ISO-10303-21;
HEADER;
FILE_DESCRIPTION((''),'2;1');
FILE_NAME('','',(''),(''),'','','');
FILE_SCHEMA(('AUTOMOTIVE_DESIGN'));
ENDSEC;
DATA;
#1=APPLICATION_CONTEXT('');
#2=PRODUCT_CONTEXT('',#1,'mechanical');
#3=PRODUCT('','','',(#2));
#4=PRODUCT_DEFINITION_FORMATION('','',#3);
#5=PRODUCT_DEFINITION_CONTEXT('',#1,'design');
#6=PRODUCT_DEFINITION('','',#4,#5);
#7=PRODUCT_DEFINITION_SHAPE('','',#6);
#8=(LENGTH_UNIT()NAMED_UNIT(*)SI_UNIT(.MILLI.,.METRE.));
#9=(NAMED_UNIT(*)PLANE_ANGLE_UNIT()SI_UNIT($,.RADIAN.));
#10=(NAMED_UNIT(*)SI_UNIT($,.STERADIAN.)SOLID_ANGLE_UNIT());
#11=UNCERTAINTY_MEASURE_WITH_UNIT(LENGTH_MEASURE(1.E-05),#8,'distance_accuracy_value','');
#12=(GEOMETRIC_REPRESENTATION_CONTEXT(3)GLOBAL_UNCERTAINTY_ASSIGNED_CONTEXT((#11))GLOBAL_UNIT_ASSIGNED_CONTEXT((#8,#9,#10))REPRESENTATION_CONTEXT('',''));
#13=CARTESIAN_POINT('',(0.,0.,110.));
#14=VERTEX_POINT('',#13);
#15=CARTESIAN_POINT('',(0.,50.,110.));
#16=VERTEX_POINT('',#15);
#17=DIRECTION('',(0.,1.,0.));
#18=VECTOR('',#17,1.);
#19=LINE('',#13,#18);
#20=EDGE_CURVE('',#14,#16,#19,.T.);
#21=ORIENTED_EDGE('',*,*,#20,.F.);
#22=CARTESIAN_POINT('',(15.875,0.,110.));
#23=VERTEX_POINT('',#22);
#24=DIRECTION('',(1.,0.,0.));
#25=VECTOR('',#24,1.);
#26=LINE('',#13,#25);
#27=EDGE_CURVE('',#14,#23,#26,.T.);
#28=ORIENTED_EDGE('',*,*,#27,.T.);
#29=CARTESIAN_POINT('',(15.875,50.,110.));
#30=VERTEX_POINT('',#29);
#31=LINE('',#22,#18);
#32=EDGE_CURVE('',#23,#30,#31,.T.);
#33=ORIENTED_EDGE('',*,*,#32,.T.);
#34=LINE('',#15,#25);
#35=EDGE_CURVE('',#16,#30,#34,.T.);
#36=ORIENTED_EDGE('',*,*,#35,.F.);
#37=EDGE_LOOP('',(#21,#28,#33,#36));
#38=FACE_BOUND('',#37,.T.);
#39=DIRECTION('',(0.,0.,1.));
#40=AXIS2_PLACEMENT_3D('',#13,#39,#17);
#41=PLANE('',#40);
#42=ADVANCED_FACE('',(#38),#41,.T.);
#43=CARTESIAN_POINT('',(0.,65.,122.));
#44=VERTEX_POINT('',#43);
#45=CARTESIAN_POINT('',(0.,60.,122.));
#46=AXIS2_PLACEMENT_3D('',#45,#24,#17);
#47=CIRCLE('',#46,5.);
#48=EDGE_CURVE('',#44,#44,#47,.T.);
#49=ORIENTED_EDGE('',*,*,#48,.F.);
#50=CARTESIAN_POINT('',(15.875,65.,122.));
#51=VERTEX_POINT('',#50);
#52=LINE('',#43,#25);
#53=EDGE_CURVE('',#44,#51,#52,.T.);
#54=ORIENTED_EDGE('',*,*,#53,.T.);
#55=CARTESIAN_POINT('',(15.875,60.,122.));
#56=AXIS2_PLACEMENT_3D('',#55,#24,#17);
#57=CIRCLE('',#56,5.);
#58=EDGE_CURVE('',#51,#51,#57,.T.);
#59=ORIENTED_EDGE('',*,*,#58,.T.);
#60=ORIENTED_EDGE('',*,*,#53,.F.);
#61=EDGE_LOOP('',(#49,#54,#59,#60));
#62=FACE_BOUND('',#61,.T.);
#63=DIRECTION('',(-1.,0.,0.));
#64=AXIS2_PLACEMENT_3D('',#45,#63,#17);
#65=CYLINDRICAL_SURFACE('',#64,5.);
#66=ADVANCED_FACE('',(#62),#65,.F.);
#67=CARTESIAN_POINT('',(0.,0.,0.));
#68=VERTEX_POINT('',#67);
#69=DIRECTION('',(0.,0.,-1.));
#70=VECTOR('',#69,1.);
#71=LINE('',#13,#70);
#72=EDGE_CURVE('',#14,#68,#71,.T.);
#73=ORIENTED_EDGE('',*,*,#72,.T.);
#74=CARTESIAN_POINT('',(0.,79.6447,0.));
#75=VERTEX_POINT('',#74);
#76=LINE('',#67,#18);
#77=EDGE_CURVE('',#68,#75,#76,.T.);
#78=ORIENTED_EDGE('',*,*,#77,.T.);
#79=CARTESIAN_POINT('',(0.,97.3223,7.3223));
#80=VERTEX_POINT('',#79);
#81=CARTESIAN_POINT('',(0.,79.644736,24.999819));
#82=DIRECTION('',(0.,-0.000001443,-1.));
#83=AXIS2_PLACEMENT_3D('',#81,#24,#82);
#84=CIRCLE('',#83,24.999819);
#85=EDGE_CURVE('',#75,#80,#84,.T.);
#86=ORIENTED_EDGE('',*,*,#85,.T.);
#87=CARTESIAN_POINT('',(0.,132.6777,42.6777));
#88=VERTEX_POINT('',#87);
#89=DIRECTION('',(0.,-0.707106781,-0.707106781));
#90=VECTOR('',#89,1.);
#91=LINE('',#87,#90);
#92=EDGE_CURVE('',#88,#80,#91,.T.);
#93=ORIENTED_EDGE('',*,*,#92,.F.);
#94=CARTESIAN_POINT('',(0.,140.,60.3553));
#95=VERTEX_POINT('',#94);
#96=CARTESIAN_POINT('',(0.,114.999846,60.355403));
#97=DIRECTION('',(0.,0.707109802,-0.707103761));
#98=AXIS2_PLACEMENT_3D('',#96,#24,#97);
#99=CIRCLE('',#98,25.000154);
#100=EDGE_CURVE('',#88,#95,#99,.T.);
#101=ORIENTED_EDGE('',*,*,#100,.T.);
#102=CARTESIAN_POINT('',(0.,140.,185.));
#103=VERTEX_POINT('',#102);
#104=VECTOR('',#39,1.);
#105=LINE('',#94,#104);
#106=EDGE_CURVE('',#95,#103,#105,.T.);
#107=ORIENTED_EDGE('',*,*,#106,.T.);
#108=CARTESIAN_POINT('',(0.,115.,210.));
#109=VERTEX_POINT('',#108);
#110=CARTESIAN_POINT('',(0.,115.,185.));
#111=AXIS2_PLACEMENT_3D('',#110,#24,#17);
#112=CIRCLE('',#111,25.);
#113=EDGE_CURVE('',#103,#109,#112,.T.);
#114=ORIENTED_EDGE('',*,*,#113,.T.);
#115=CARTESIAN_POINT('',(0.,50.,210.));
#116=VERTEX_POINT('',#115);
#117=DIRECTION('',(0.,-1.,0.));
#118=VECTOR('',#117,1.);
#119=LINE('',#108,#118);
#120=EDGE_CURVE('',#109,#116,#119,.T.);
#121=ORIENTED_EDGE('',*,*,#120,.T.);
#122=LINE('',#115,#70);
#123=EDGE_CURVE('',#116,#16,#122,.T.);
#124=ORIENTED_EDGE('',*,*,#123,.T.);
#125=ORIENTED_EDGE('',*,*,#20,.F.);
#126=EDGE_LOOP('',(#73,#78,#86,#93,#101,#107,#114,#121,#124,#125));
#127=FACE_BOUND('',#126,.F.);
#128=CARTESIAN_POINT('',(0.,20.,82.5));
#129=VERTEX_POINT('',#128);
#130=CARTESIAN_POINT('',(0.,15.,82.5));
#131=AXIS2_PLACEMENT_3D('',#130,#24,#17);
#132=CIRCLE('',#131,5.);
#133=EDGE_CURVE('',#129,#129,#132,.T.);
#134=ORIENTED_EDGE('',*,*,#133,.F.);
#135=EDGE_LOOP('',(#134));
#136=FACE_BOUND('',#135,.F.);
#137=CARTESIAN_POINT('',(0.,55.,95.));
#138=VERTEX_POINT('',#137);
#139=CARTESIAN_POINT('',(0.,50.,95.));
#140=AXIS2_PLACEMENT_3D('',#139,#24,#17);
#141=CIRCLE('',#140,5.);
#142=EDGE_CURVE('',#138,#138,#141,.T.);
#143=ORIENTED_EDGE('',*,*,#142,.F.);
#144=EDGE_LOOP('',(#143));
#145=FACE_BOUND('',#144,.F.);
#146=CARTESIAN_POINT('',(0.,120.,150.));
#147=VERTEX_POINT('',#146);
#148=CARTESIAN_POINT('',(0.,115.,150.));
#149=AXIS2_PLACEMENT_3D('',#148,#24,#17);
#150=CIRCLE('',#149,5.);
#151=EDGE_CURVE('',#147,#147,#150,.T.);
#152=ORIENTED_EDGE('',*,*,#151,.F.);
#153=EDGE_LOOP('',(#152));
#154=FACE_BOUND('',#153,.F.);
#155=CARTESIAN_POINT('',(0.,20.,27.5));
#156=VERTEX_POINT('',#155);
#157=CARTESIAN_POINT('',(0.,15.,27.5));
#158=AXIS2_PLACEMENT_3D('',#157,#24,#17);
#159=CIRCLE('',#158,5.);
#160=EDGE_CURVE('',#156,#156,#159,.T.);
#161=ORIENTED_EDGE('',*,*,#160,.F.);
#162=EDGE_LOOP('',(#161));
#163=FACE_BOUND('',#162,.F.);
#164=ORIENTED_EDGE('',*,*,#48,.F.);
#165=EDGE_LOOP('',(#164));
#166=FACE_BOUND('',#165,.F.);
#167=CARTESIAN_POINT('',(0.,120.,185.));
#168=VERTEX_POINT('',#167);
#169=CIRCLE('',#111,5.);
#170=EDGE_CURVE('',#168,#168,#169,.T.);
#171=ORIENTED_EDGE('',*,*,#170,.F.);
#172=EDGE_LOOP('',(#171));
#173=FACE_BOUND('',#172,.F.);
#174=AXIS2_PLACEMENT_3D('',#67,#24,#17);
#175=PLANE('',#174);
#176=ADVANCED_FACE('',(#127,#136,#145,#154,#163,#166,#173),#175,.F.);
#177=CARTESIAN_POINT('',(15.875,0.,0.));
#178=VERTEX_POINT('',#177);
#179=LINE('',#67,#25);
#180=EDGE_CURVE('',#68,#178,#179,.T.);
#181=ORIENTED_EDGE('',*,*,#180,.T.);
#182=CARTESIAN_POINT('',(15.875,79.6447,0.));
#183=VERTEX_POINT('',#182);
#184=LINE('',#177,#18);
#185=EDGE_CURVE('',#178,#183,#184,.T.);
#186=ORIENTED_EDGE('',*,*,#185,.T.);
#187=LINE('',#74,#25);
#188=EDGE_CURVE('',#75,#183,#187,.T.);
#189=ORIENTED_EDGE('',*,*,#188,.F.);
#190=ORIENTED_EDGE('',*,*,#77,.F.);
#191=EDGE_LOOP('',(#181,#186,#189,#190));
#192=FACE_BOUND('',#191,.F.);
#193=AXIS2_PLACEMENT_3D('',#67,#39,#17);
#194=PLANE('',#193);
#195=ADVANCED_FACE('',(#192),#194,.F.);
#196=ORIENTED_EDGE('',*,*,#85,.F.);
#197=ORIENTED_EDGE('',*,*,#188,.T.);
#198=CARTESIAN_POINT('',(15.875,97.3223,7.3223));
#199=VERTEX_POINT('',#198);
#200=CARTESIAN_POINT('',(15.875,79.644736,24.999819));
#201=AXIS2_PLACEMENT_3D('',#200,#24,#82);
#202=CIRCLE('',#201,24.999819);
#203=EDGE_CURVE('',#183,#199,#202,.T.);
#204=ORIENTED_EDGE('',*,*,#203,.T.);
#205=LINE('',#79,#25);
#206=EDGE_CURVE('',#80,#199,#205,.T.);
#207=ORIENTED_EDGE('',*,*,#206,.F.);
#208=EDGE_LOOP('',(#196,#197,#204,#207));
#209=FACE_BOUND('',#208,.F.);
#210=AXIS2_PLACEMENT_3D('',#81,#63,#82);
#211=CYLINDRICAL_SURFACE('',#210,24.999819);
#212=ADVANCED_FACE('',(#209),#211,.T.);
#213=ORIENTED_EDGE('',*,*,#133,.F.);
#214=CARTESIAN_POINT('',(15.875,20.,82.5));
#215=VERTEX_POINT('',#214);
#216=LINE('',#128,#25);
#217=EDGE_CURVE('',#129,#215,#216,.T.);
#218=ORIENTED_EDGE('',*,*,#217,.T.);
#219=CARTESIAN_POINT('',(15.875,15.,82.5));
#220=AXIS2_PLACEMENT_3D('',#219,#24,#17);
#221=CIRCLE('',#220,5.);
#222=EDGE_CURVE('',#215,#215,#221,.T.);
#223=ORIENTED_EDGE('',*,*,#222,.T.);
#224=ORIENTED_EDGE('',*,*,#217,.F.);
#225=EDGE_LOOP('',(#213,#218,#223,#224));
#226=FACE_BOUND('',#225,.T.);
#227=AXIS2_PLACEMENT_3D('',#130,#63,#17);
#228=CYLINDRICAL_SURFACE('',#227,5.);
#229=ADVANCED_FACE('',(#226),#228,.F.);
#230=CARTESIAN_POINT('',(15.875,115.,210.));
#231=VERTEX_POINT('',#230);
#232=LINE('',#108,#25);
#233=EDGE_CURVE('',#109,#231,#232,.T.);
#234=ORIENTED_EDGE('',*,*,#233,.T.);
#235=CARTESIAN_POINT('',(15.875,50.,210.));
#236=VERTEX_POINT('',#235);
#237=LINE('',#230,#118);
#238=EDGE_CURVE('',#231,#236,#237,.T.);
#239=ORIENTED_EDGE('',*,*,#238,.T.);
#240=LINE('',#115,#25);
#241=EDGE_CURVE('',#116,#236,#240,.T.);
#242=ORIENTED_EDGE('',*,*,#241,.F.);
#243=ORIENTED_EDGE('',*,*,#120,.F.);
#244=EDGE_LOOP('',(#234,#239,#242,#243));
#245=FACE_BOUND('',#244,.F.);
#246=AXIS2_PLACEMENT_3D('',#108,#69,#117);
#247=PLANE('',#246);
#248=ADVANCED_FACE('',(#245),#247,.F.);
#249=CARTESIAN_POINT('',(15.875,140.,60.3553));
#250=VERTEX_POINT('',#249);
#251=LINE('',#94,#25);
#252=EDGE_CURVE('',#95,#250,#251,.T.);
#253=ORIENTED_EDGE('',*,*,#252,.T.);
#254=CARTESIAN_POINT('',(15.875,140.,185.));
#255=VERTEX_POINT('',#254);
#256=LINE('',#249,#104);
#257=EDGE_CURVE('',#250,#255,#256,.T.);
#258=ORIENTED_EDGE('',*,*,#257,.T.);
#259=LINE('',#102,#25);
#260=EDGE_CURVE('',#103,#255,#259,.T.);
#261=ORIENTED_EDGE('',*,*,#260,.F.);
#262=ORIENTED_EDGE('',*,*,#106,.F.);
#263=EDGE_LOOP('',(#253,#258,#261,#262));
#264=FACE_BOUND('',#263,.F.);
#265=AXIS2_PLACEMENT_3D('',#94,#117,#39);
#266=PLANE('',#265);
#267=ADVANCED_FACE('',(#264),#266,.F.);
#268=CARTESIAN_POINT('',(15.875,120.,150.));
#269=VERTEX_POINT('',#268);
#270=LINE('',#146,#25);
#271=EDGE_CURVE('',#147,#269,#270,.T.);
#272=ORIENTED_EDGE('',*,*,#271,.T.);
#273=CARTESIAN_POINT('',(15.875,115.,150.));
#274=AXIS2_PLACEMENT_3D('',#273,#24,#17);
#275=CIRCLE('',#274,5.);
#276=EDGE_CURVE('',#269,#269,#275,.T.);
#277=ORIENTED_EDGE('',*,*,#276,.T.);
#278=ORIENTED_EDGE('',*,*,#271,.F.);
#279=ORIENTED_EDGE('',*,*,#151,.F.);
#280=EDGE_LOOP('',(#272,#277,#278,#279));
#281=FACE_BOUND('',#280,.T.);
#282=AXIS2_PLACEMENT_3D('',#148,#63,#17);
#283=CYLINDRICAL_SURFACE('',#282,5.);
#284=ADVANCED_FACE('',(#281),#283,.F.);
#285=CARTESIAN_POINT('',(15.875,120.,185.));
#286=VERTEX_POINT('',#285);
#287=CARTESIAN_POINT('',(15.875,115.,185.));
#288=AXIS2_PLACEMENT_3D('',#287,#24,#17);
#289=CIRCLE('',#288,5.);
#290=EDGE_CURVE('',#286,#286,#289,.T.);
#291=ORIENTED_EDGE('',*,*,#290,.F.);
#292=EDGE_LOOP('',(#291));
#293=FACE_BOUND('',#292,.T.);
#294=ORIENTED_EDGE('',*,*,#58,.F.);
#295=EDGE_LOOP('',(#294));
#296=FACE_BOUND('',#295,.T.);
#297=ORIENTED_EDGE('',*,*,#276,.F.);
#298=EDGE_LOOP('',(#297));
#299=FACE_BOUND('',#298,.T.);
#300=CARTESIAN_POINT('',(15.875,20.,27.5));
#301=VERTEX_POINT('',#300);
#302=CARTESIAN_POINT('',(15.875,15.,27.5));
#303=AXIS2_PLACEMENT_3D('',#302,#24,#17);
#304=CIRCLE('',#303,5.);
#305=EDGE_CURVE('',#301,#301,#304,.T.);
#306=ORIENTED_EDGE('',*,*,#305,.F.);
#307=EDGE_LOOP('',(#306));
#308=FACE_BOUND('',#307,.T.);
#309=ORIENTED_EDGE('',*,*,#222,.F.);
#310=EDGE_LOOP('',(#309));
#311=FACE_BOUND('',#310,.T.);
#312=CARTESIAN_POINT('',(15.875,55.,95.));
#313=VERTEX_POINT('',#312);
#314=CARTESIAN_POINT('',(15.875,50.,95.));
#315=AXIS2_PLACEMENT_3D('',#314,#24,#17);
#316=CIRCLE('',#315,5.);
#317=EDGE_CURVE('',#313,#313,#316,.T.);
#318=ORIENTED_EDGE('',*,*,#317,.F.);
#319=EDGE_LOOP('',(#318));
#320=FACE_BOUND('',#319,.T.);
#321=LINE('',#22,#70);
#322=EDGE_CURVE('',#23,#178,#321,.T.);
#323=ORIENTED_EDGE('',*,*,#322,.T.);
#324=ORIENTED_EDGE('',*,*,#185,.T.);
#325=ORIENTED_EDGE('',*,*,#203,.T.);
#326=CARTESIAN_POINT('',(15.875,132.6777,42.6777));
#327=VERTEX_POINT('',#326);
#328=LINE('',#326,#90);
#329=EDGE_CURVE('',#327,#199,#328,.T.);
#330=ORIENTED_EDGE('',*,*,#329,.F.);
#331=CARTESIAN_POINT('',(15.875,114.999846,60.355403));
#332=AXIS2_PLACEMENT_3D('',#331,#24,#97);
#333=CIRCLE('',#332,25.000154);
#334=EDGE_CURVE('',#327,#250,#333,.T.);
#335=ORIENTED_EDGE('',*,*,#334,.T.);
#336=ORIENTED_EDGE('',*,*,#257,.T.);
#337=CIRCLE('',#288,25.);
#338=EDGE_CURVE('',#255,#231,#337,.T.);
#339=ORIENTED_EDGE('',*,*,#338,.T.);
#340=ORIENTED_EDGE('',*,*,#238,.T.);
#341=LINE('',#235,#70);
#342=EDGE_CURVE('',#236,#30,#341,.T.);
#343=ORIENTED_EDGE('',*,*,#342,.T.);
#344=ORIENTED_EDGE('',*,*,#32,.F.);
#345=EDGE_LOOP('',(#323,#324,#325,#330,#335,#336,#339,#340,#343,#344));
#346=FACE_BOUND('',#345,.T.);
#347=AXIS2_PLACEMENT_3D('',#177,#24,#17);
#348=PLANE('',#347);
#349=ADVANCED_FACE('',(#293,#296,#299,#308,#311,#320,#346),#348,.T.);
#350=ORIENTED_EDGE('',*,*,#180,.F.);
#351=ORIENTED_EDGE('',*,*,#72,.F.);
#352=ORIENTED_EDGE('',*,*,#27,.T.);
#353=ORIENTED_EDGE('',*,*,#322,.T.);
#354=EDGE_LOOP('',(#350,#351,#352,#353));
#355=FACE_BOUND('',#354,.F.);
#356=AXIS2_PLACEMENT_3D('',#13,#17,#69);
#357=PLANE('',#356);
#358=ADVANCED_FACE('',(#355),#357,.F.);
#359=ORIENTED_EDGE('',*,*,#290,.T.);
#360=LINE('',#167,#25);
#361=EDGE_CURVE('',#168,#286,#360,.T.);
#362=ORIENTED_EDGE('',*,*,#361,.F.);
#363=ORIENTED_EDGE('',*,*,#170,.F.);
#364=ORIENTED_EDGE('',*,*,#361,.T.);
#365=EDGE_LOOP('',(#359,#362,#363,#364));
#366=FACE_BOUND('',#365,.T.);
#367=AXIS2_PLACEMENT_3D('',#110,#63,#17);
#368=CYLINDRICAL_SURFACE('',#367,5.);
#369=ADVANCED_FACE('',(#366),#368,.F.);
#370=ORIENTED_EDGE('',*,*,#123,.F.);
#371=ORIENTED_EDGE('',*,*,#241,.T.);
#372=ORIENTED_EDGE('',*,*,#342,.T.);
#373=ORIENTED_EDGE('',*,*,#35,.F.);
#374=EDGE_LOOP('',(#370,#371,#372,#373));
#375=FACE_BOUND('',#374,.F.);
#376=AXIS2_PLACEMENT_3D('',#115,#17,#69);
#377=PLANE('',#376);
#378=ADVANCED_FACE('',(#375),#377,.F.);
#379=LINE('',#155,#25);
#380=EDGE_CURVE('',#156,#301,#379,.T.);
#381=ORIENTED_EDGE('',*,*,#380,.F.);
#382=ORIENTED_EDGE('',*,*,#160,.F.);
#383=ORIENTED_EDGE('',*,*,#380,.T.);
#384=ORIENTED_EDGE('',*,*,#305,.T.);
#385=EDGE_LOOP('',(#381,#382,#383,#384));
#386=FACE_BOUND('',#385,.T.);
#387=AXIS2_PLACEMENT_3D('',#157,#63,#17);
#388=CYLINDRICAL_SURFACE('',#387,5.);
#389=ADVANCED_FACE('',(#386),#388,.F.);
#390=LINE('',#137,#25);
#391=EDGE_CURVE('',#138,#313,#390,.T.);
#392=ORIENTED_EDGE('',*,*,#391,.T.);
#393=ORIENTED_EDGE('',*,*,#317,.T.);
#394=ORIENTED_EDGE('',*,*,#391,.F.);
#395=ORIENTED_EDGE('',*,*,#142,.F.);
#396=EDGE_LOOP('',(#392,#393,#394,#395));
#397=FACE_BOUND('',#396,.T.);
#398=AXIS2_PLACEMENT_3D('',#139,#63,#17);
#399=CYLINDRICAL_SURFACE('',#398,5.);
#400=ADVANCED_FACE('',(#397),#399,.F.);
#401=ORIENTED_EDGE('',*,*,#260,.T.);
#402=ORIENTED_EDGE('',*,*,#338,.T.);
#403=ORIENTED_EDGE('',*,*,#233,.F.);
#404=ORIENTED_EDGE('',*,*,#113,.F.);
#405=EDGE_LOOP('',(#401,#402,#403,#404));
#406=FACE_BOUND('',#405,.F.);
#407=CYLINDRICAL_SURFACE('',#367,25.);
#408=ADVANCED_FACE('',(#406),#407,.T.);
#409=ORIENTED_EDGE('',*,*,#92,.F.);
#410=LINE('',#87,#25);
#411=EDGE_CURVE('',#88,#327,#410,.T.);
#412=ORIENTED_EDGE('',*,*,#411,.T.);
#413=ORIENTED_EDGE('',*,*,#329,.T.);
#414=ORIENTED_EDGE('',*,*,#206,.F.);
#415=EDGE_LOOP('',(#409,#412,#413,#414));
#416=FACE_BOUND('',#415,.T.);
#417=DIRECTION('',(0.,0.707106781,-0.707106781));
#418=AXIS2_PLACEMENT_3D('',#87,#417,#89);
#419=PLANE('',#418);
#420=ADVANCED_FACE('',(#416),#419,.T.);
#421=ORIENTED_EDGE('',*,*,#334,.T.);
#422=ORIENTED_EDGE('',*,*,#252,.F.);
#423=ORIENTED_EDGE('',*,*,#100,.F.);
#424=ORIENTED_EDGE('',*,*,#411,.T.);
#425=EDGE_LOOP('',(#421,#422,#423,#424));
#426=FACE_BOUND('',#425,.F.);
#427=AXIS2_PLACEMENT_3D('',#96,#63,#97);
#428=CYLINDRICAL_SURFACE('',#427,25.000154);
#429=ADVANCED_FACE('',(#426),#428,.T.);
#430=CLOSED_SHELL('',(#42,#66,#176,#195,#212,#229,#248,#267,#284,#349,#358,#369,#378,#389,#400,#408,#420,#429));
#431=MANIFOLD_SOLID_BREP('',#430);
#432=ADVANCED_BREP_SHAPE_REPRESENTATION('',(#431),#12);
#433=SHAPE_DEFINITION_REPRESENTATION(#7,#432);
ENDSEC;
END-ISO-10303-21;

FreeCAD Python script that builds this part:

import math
import FreeCAD as App
import Part
import Sketcher
Q = App.Units.Quantity

doc = App.newDocument("Part")
params = doc.addObject("Spreadsheet::Sheet", "Params")
for row, (alias, value) in enumerate([
    ("sketch1_height", "3.937 in"),
    ("pad1_length", "0.625 in"),
], start=1):
    params.set(f"A{row}", alias)
    params.set(f"B{row}", "=" + value)
    params.setAlias(f"B{row}", alias)

body = doc.addObject("PartDesign::Body", "Body")

sketch1 = body.newObject("Sketcher::SketchObject", "Sketch")
sketch1.AttachmentSupport = (doc.getObject("YZ_Plane"), [""])
sketch1.MapMode = "FlatFace"
sketch1.addGeometry(Part.LineSegment(App.Vector(0, 110, 0), App.Vector(0, 0, 0)), False)
sketch1.addGeometry(Part.LineSegment(App.Vector(0, 0, 0), App.Vector(80, 0, 0)), False)
sketch1.addGeometry(Part.ArcOfCircle(Part.Circle(App.Vector(80, 25, 0), App.Vector(0, 0, 1), 25), math.radians(-90), math.radians(-45)), False)
sketch1.addGeometry(Part.LineSegment(App.Vector(97, 7, 0), App.Vector(133, 43, 0)), False)
sketch1.addGeometry(Part.ArcOfCircle(Part.Circle(App.Vector(115, 60, 0), App.Vector(0, 0, 1), 25), math.radians(-45), math.radians(0)), False)
sketch1.addGeometry(Part.LineSegment(App.Vector(140, 60, 0), App.Vector(140, 185, 0)), False)
sketch1.addGeometry(Part.ArcOfCircle(Part.Circle(App.Vector(115, 185, 0), App.Vector(0, 0, 1), 25), math.radians(0), math.radians(90)), False)
sketch1.addGeometry(Part.LineSegment(App.Vector(115, 210, 0), App.Vector(50, 210, 0)), False)
sketch1.addGeometry(Part.LineSegment(App.Vector(50, 210, 0), App.Vector(50, 110, 0)), False)
sketch1.addGeometry(Part.LineSegment(App.Vector(50, 110, 0), App.Vector(0, 110, 0)), False)
sketch1.addGeometry(Part.Circle(App.Vector(15, 28, 0), App.Vector(0, 0, 1), 5), False)
sketch1.addGeometry(Part.Circle(App.Vector(15, 82, 0), App.Vector(0, 0, 1), 5), False)
sketch1.addGeometry(Part.Circle(App.Vector(50, 95, 0), App.Vector(0, 0, 1), 5), False)
sketch1.addGeometry(Part.Circle(App.Vector(60, 122, 0), App.Vector(0, 0, 1), 5), False)
sketch1.addGeometry(Part.Circle(App.Vector(115, 150, 0), App.Vector(0, 0, 1), 5), False)
sketch1.addGeometry(Part.Circle(App.Vector(115, 185, 0), App.Vector(0, 0, 1), 5), False)
sketch1.addConstraint(Sketcher.Constraint("Coincident", 0, 2, 1, 1))
sketch1.addConstraint(Sketcher.Constraint("Tangent", 1, 2, 2, 1))
sketch1.addConstraint(Sketcher.Constraint("Tangent", 2, 2, 3, 1))
sketch1.addConstraint(Sketcher.Constraint("Tangent", 3, 2, 4, 1))
sketch1.addConstraint(Sketcher.Constraint("Tangent", 4, 2, 5, 1))
sketch1.addConstraint(Sketcher.Constraint("Tangent", 5, 2, 6, 1))
sketch1.addConstraint(Sketcher.Constraint("Tangent", 6, 2, 7, 1))
sketch1.addConstraint(Sketcher.Constraint("Coincident", 7, 2, 8, 1))
sketch1.addConstraint(Sketcher.Constraint("Coincident", 8, 2, 9, 1))
sketch1.addConstraint(Sketcher.Constraint("Coincident", 9, 2, 0, 1))
sketch1.addConstraint(Sketcher.Constraint("Vertical", 0))
sketch1.addConstraint(Sketcher.Constraint("Horizontal", 1))
sketch1.addConstraint(Sketcher.Constraint("Vertical", 5))
sketch1.addConstraint(Sketcher.Constraint("Horizontal", 7))
sketch1.addConstraint(Sketcher.Constraint("Vertical", 8))
sketch1.addConstraint(Sketcher.Constraint("Horizontal", 9))
sketch1.addConstraint(Sketcher.Constraint("Coincident", 0, 2, -1, 1))
sketch1.addConstraint(Sketcher.Constraint("Coincident", 15, 3, 6, 3))
sketch1.addConstraint(Sketcher.Constraint("Equal", 2, 4))
sketch1.addConstraint(Sketcher.Constraint("Equal", 4, 6))
sketch1.addConstraint(Sketcher.Constraint("Equal", 10, 11))
sketch1.addConstraint(Sketcher.Constraint("Equal", 11, 12))
sketch1.addConstraint(Sketcher.Constraint("Equal", 12, 13))
sketch1.addConstraint(Sketcher.Constraint("Equal", 13, 14))
sketch1.addConstraint(Sketcher.Constraint("Equal", 14, 15))
sketch1.addConstraint(Sketcher.Constraint("Vertical", 10, 3, 11, 3))
sketch1.addConstraint(Sketcher.Constraint("Vertical", 6, 3, 14, 3))
sketch1.addConstraint(Sketcher.Constraint("Vertical", 12, 3, 7, 2))
sketch1.addConstraint(Sketcher.Constraint("Angle", 3, Q("45 deg")))
sketch1.addConstraint(Sketcher.Constraint("Diameter", 10, Q("0.3937 in")))
sketch1.addConstraint(Sketcher.Constraint("Radius", 2, Q("25 mm")))
sketch1.addConstraint(Sketcher.Constraint("DistanceX", 9, 2, 9, 1, Q("1.9685 in")))
sketch1.addConstraint(Sketcher.Constraint("DistanceY", 0, 2, 0, 1, Q("4.3307 in")))
sketch1.addConstraint(Sketcher.Constraint("Distance", 3, Q("1.9685 in")))
sketch1.addConstraint(Sketcher.Constraint("DistanceX", -1, 1, 4, 2, Q("5.5118 in")))
sketch1.addConstraint(Sketcher.Constraint("DistanceY", 12, 3, 6, 3, Q("3.5433 in")))
sketch1.addConstraint(Sketcher.Constraint("DistanceX", 12, 3, 13, 3, Q("0.3937 in")))
sketch1.addConstraint(Sketcher.Constraint("DistanceY", 8, 2, 8, 1, Q("3.937 in")))
sketch1.addConstraint(Sketcher.Constraint("DistanceX", -1, 1, 10, 3, Q("15 mm")))
sketch1.addConstraint(Sketcher.Constraint("DistanceY", -1, 1, 10, 3, Q("27.5 mm")))
sketch1.addConstraint(Sketcher.Constraint("DistanceY", 10, 3, 11, 3, Q("55 mm")))
sketch1.addConstraint(Sketcher.Constraint("DistanceY", 14, 3, 6, 3, Q("35 mm")))
sketch1.addConstraint(Sketcher.Constraint("DistanceY", 13, 3, 6, 2, Q("88 mm")))
sketch1.setExpression("Constraints[37]", "Params.sketch1_height")
pad1 = body.newObject("PartDesign::Pad", "Pad")
pad1.Profile = sketch1
pad1.setExpression("Length", "Params.pad1_length")

doc.recompute()
